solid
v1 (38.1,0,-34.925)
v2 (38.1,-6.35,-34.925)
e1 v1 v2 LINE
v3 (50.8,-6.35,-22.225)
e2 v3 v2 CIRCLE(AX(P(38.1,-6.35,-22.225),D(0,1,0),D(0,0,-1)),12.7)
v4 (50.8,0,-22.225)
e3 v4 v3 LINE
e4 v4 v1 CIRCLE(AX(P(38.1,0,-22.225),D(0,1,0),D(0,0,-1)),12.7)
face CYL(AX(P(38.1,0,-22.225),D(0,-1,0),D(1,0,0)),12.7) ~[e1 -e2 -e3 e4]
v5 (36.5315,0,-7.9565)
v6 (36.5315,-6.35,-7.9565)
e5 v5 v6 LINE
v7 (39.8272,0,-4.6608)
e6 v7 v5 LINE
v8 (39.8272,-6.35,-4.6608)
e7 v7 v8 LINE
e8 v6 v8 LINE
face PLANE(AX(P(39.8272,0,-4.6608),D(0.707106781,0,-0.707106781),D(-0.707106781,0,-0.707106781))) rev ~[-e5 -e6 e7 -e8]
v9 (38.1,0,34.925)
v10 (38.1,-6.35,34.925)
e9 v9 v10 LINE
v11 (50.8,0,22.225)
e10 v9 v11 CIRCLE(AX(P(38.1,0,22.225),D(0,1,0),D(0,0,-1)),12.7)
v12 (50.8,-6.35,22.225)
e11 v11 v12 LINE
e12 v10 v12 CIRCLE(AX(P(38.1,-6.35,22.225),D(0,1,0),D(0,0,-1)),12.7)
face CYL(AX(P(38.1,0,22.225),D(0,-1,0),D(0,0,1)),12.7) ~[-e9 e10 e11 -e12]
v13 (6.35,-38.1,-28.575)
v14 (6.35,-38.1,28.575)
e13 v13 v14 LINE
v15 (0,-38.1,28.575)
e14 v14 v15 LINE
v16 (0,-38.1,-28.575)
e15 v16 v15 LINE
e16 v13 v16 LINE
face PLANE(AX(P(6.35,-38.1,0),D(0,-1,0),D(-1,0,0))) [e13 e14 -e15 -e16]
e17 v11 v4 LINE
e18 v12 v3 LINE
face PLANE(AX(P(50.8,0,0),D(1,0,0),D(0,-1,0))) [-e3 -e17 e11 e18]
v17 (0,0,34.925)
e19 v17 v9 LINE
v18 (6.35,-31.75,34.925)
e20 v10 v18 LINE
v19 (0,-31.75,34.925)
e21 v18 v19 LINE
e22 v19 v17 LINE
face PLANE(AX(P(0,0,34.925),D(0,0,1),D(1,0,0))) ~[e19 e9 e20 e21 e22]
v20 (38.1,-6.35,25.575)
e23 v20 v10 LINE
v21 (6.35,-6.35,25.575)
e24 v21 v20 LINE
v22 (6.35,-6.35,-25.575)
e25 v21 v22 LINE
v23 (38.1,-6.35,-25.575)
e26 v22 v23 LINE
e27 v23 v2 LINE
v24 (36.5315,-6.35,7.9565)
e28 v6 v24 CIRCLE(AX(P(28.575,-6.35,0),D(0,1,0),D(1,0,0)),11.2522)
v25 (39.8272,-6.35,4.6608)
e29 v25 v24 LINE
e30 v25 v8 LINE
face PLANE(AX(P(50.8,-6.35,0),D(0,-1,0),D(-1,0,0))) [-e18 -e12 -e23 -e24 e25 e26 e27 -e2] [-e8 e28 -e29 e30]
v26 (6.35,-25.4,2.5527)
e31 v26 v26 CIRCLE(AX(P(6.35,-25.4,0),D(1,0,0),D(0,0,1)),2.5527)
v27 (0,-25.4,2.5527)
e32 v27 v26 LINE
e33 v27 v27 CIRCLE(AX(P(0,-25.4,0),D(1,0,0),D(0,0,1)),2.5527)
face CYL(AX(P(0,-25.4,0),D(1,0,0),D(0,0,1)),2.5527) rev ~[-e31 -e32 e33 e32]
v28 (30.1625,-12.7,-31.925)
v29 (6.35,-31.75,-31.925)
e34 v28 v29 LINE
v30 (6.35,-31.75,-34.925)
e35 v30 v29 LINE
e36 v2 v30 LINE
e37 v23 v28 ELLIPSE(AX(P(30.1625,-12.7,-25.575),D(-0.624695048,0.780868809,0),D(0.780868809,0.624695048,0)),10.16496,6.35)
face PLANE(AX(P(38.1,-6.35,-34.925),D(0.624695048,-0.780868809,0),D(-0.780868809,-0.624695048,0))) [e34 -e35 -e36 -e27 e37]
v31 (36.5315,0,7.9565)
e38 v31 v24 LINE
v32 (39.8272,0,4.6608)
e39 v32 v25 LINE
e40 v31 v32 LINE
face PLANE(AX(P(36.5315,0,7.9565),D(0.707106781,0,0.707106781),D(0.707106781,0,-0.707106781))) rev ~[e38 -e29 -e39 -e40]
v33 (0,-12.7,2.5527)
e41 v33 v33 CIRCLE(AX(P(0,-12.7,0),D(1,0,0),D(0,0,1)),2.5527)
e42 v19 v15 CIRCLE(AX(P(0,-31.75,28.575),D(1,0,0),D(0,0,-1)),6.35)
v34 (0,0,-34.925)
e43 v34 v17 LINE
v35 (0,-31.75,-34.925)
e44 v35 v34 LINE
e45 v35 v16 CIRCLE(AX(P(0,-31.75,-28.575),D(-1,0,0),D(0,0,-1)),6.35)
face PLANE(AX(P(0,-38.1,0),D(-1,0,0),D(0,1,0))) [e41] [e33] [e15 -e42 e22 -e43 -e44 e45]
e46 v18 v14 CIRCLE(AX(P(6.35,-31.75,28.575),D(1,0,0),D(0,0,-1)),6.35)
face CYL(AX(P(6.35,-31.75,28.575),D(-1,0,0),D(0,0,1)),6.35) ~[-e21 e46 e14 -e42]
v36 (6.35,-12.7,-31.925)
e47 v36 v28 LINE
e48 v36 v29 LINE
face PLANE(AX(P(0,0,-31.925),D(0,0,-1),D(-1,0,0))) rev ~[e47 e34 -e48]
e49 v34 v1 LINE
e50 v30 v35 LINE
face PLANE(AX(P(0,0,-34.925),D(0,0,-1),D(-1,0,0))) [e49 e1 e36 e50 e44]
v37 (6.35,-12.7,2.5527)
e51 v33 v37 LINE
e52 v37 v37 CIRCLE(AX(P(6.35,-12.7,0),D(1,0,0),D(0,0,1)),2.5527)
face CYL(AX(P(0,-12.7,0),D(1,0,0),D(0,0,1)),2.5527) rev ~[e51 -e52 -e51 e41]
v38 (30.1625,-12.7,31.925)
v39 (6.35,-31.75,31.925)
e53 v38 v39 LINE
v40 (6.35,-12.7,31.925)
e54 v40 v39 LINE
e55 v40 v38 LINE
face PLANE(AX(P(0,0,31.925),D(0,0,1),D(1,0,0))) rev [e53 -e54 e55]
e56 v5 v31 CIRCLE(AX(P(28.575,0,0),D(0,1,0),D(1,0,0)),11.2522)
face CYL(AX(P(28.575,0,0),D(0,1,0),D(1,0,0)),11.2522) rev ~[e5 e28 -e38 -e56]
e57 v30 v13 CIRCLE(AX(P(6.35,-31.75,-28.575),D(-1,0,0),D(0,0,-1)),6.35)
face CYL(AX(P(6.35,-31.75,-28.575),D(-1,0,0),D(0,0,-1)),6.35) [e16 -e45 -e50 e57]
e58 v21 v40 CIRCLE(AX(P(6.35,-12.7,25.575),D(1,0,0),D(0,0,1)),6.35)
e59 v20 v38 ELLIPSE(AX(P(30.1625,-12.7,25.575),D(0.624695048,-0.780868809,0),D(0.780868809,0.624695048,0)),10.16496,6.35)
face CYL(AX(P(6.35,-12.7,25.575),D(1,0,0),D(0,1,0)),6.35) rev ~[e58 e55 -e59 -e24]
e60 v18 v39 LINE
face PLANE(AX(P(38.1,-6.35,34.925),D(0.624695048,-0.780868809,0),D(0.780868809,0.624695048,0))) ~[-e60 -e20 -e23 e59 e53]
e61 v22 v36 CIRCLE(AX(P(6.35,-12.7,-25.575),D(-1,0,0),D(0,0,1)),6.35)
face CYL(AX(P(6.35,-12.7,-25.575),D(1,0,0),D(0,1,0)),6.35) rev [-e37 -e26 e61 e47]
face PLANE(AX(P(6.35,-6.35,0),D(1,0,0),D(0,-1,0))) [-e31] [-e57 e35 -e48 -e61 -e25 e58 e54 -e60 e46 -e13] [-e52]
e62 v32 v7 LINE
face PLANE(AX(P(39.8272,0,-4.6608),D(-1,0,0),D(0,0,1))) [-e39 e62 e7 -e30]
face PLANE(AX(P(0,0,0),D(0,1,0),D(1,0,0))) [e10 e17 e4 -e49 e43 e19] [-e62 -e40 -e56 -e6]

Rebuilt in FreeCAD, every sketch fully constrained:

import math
import FreeCAD as App
import Part
import Sketcher
from FreeCAD import Vector
Q = App.Units.Quantity


def edges_at(feature, points):
    """Names of the edges that pass closest to the given points."""
    edges = feature.Shape.Edges
    near = lambda p: min(range(len(edges)), key=lambda i: edges[i].distToShape(Part.Vertex(*p))[0])
    return sorted({f"Edge{near(p) + 1}" for p in points})

doc = App.newDocument("Part")
body = doc.addObject("PartDesign::Body", "Body")

sketch1 = body.newObject("Sketcher::SketchObject", "Sketch")
sketch1.AttachmentSupport = (doc.getObject("XY_Plane"), [""])
sketch1.MapMode = "FlatFace"
sketch1.addGeometry(Part.LineSegment(Vector(51, 0, 0), Vector(0, 0, 0)), False)
sketch1.addGeometry(Part.LineSegment(Vector(0, 0, 0), Vector(0, -38, 0)), False)
sketch1.addGeometry(Part.LineSegment(Vector(0, -38, 0), Vector(6, -38, 0)), False)
sketch1.addGeometry(Part.LineSegment(Vector(6, -38, 0), Vector(6, -6, 0)), False)
sketch1.addGeometry(Part.LineSegment(Vector(6, -6, 0), Vector(51, -6, 0)), False)
sketch1.addGeometry(Part.LineSegment(Vector(51, -6, 0), Vector(51, 0, 0)), False)
sketch1.addConstraint(Sketcher.Constraint("Coincident", 0, 2, 1, 1))
sketch1.addConstraint(Sketcher.Constraint("Coincident", 1, 2, 2, 1))
sketch1.addConstraint(Sketcher.Constraint("Coincident", 2, 2, 3, 1))
sketch1.addConstraint(Sketcher.Constraint("Coincident", 3, 2, 4, 1))
sketch1.addConstraint(Sketcher.Constraint("Coincident", 4, 2, 5, 1))
sketch1.addConstraint(Sketcher.Constraint("Coincident", 5, 2, 0, 1))
sketch1.addConstraint(Sketcher.Constraint("Horizontal", 0))
sketch1.addConstraint(Sketcher.Constraint("Vertical", 1))
sketch1.addConstraint(Sketcher.Constraint("Horizontal", 2))
sketch1.addConstraint(Sketcher.Constraint("Vertical", 3))
sketch1.addConstraint(Sketcher.Constraint("Horizontal", 4))
sketch1.addConstraint(Sketcher.Constraint("Vertical", 5))
sketch1.addConstraint(Sketcher.Constraint("Coincident", 0, 2, -1, 1))
sketch1.addConstraint(Sketcher.Constraint("Equal", 2, 5))
sketch1.addConstraint(Sketcher.Constraint("DistanceX", 0, 2, 0, 1, Q("2 in")))
sketch1.addConstraint(Sketcher.Constraint("DistanceY", 1, 2, 1, 1, Q("1.5 in")))
sketch1.addConstraint(Sketcher.Constraint("DistanceX", 2, 1, 2, 2, Q("0.25 in")))
pad1 = body.newObject("PartDesign::Pad", "Pad")
pad1.Profile = sketch1
pad1.Length = Q("2.75 in")
pad1.Midplane = True

sketch2 = body.newObject("Sketcher::SketchObject", "Sketch001")
sketch2.AttachmentSupport = (doc.getObject("YZ_Plane"), [""])
sketch2.MapMode = "FlatFace"
sketch2.addGeometry(Part.Circle(Vector(-12.7, -25.4, 0), Vector(0, 0, 1), 2.6), False)
sketch2.addGeometry(Part.Circle(Vector(-25.4, -25.4, 0), Vector(0, 0, 1), 2.6), False)
sketch2.addGeometry(Part.Circle(Vector(-25.4, 25.4, 0), Vector(0, 0, 1), 2.6), False)
sketch2.addGeometry(Part.Circle(Vector(-12.7, 25.4, 0), Vector(0, 0, 1), 2.6), False)
sketch2.addConstraint(Sketcher.Constraint("Equal", 0, 1))
sketch2.addConstraint(Sketcher.Constraint("Equal", 1, 2))
sketch2.addConstraint(Sketcher.Constraint("Equal", 2, 3))
sketch2.addConstraint(Sketcher.Constraint("Symmetric", 1, 3, 2, 3, -1))
sketch2.addConstraint(Sketcher.Constraint("Symmetric", 0, 3, 3, 3, -1))
sketch2.addConstraint(Sketcher.Constraint("Horizontal", 0, 3, 1, 3))
sketch2.addConstraint(Sketcher.Constraint("Diameter", 0, Q("0.201 in")))
sketch2.addConstraint(Sketcher.Constraint("DistanceY", 0, 3, -1, 1, Q("1 in")))
sketch2.addConstraint(Sketcher.Constraint("DistanceX", 1, 3, -1, 1, Q("1 in")))
sketch2.addConstraint(Sketcher.Constraint("DistanceX", 0, 3, -1, 1, Q("0.5 in")))
doc.recompute()
hole = body.newObject("PartDesign::Hole", "Hole")
hole.Profile = sketch2
hole.ThreadType = "None"
hole.Diameter = Q("0.201 in")
hole.DepthType = "ThroughAll"
hole.Reversed = True

sketch3 = body.newObject("Sketcher::SketchObject", "Sketch002")
sketch3.AttachmentSupport = (doc.getObject("XZ_Plane"), [""])
sketch3.MapMode = "FlatFace"
sketch3.addGeometry(Part.ArcOfCircle(Part.Circle(Vector(28.6, 0, 0), Vector(0, 0, 1), 11.3), math.radians(45), math.radians(315)), False)
sketch3.addGeometry(Part.LineSegment(Vector(36.5, 8, 0), Vector(39.8, 4.7, 0)), False)
sketch3.addGeometry(Part.LineSegment(Vector(39.8, 4.7, 0), Vector(39.8, -4.7, 0)), False)
sketch3.addGeometry(Part.LineSegment(Vector(39.8, -4.7, 0), Vector(36.5, -8, 0)), False)
sketch3.addConstraint(Sketcher.Constraint("Tangent", 0, 1, 1, 1))
sketch3.addConstraint(Sketcher.Constraint("Coincident", 1, 2, 2, 1))
sketch3.addConstraint(Sketcher.Constraint("Coincident", 2, 2, 3, 1))
sketch3.addConstraint(Sketcher.Constraint("Tangent", 3, 2, 0, 2))
sketch3.addConstraint(Sketcher.Constraint("Vertical", 2))
sketch3.addConstraint(Sketcher.Constraint("Symmetric", 0, 1, 3, 2, -1))
sketch3.addConstraint(Sketcher.Constraint("Perpendicular", 1, 3))
sketch3.addConstraint(Sketcher.Constraint("Radius", 0, Q("0.443 in")))
sketch3.addConstraint(Sketcher.Constraint("DistanceY", 2, 2, 2, 1, Q("0.367 in")))
sketch3.addConstraint(Sketcher.Constraint("DistanceX", -1, 1, 0, 3, Q("1.125 in")))
pocket1 = body.newObject("PartDesign::Pocket", "Pocket")
pocket1.Profile = sketch3
pocket1.Type = "ThroughAll"
pocket1.Reversed = True
doc.recompute()

fillet = body.newObject("PartDesign::Fillet", "Fillet")
fillet.Base = (pocket1, edges_at(pocket1, [(50.8, -3.175, -34.925), (50.8, -3.175, 34.925)]))
fillet.Radius = Q("0.5 in")
doc.recompute()

fillet2 = body.newObject("PartDesign::Fillet", "Fillet001")
fillet2.Base = (fillet, edges_at(fillet, [(3.175, -38.1, -34.925), (3.175, -38.1, 34.925)]))
fillet2.Radius = Q("0.25 in")

sketch4 = body.newObject("Sketcher::SketchObject", "Sketch003")
sketch4.AttachmentSupport = (doc.getObject("XY_Plane"), [""])
sketch4.MapMode = "FlatFace"
sketch4.AttachmentOffset = App.Placement(Vector(0, 0, -1.375 * 25.4), App.Rotation())
sketch4.addGeometry(Part.LineSegment(Vector(6, -6, 0), Vector(38, -6, 0)), False)
sketch4.addGeometry(Part.LineSegment(Vector(38, -6, 0), Vector(6, -32, 0)), False)
sketch4.addGeometry(Part.LineSegment(Vector(6, -32, 0), Vector(6, -6, 0)), False)
sketch4.addConstraint(Sketcher.Constraint("Coincident", 0, 2, 1, 1))
sketch4.addConstraint(Sketcher.Constraint("Coincident", 1, 2, 2, 1))
sketch4.addConstraint(Sketcher.Constraint("Coincident", 2, 2, 0, 1))
sketch4.addConstraint(Sketcher.Constraint("Horizontal", 0))
sketch4.addConstraint(Sketcher.Constraint("Vertical", 2))
sketch4.addConstraint(Sketcher.Constraint("DistanceY", 2, 1, 2, 2, Q("1 in")))
sketch4.addConstraint(Sketcher.Constraint("DistanceX", 0, 1, 0, 2, Q("1.25 in")))
sketch4.addConstraint(Sketcher.Constraint("DistanceX", -1, 1, 0, 2, Q("1.5 in")))
sketch4.addConstraint(Sketcher.Constraint("DistanceY", 0, 2, -1, 1, Q("0.25 in")))
pad2 = body.newObject("PartDesign::Pad", "Pad001")
pad2.Profile = sketch4
pad2.Length = Q("0.1181102 in")
doc.recompute()

mirrored = body.newObject("PartDesign::Mirrored", "Mirrored")
mirrored.Originals = [pad2]
mirrored.MirrorPlane = (doc.getObject("XY_Plane"), [""])
body.Tip = mirrored
doc.recompute()

fillet3 = body.newObject("PartDesign::Fillet", "Fillet002")
fillet3.Base = (mirrored, edges_at(mirrored, [(22.225, -6.35, 31.925), (22.225, -6.35, -31.925)]))
fillet3.Radius = Q("0.25 in")

sketch5 = body.newObject("Sketcher::SketchObject", "Sketch004")
sketch5.AttachmentSupport = (doc.getObject("YZ_Plane"), [""])
sketch5.MapMode = "FlatFace"
sketch5.addGeometry(Part.Circle(Vector(-25.4, 0, 0), Vector(0, 0, 1), 2.6), False)
sketch5.addGeometry(Part.Circle(Vector(-12.7, 0, 0), Vector(0, 0, 1), 2.6), False)
sketch5.addConstraint(Sketcher.Constraint("Equal", 0, 1))
sketch5.addConstraint(Sketcher.Constraint("PointOnObject", 0, 3, -1))
sketch5.addConstraint(Sketcher.Constraint("PointOnObject", 1, 3, -1))
sketch5.addConstraint(Sketcher.Constraint("Diameter", 0, Q("0.201 in")))
sketch5.addConstraint(Sketcher.Constraint("DistanceX", 0, 3, -1, 1, Q("1 in")))
sketch5.addConstraint(Sketcher.Constraint("DistanceX", 1, 3, -1, 1, Q("0.5 in")))
doc.recompute()
hole2 = body.newObject("PartDesign::Hole", "Hole001")
hole2.Profile = sketch5
hole2.ThreadType = "None"
hole2.Diameter = Q("0.201 in")
hole2.DepthType = "ThroughAll"
hole2.Reversed = True

sketch6 = body.newObject("Sketcher::SketchObject", "Sketch005")
sketch6.AttachmentSupport = (doc.getObject("YZ_Plane"), [""])
sketch6.MapMode = "FlatFace"
sketch6.addGeometry(Part.Circle(Vector(-25.4, 25.4, 0), Vector(0, 0, 1), 2.6), False)
sketch6.addGeometry(Part.Circle(Vector(-12.7, -25.4, 0), Vector(0, 0, 1), 2.6), False)
sketch6.addGeometry(Part.Circle(Vector(-25.4, -25.4, 0), Vector(0, 0, 1), 2.6), False)
sketch6.addGeometry(Part.Circle(Vector(-12.7, 25.4, 0), Vector(0, 0, 1), 2.6), False)
sketch6.addConstraint(Sketcher.Constraint("Equal", 0, 1))
sketch6.addConstraint(Sketcher.Constraint("Equal", 1, 2))
sketch6.addConstraint(Sketcher.Constraint("Equal", 2, 3))
sketch6.addConstraint(Sketcher.Constraint("Symmetric", 0, 3, 2, 3, -1))
sketch6.addConstraint(Sketcher.Constraint("Symmetric", 1, 3, 3, 3, -1))
sketch6.addConstraint(Sketcher.Constraint("Horizontal", 1, 3, 2, 3))
sketch6.addConstraint(Sketcher.Constraint("Diameter", 0, Q("0.201 in")))
sketch6.addConstraint(Sketcher.Constraint("DistanceX", 0, 3, -1, 1, Q("1 in")))
sketch6.addConstraint(Sketcher.Constraint("DistanceY", -1, 1, 0, 3, Q("1 in")))
sketch6.addConstraint(Sketcher.Constraint("DistanceX", 1, 3, -1, 1, Q("0.5 in")))
pad3 = body.newObject("PartDesign::Pad", "Pad002")
pad3.Profile = sketch6
pad3.Length = Q("0.25 in")

doc.recompute()
